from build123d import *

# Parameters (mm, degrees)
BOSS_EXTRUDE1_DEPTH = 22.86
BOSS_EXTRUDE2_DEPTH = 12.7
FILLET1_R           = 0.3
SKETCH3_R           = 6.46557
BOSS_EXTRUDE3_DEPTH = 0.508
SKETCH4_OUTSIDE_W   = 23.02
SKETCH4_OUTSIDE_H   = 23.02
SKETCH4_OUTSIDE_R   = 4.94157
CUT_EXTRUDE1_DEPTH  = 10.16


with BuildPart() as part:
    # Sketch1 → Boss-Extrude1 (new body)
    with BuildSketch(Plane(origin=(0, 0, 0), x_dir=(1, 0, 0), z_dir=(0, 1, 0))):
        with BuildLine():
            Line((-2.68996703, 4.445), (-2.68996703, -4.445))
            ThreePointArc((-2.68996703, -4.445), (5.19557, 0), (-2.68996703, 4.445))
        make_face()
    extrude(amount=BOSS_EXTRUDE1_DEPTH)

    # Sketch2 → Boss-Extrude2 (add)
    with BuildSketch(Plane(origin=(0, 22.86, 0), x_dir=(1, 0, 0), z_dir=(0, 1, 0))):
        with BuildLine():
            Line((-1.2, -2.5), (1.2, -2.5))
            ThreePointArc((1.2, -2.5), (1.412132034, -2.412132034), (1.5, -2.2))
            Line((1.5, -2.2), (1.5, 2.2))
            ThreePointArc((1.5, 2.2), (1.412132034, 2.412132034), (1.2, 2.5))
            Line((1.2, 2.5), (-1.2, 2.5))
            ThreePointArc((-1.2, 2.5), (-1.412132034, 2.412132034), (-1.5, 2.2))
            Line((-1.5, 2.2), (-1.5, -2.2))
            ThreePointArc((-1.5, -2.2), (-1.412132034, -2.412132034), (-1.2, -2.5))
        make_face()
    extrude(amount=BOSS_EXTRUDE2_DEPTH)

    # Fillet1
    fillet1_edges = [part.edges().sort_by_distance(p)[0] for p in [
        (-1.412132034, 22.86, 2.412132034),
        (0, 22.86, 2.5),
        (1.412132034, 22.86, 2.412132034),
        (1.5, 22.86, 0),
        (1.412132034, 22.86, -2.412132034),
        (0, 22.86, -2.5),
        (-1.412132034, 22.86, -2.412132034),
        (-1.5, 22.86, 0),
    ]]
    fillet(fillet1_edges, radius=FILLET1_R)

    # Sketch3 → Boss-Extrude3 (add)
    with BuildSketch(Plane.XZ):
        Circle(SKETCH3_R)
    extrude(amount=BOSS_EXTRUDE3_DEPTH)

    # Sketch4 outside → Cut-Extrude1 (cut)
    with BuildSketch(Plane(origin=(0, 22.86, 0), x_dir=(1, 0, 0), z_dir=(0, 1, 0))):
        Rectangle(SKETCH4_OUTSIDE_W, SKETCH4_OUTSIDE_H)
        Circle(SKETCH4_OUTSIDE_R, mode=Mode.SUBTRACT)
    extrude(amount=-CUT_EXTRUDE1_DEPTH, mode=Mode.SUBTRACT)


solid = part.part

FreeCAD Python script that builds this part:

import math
import FreeCAD as App
import Part
import Sketcher

V = App.Vector
Q = App.Units.Quantity


def edges_at(feature, points):
    """Names of the edges that pass closest to the given points."""
    edges = feature.Shape.Edges
    near = lambda p: min(range(len(edges)), key=lambda i: edges[i].distToShape(Part.Vertex(*p))[0])
    return sorted({f"Edge{near(p) + 1}" for p in points})


def add_polygon(sketch, points):
    """Adds a closed chain of lines whose ends are joined by coincident constraints."""
    first, n = sketch.GeometryCount, len(points)
    for a, b in zip(points, points[1:] + points[:1]):
        sketch.addGeometry(Part.LineSegment(App.Vector(*a, 0), App.Vector(*b, 0)), False)
    for i in range(n):
        sketch.addConstraint(Sketcher.Constraint("Coincident", first + i, 2, first + (i + 1) % n, 1))

doc = App.newDocument("Part")
body = doc.addObject("PartDesign::Body", "Body")

sketch1 = doc.addObject("Sketcher::SketchObject", "Sketch")
body.addObject(sketch1)
sketch1.AttachmentSupport = (doc.XZ_Plane, [""])
sketch1.MapMode = "FlatFace"
sketch1.addGeometry(Part.LineSegment(V(-2.689967, -4.445, 0), V(-2.689967, 4.445, 0)), False)
sketch1.addGeometry(Part.ArcOfCircle(Part.Circle(V(0, 0, 0), V(0, 0, 1), 5.19557), math.radians(-121.18094), math.radians(121.18094)), False)
sketch1.addConstraint(Sketcher.Constraint("Coincident", 0, 1, 1, 1))
sketch1.addConstraint(Sketcher.Constraint("Coincident", 1, 2, 0, 2))
sketch1.addConstraint(Sketcher.Constraint("Vertical", 0))
sketch1.addConstraint(Sketcher.Constraint("Coincident", 1, 3, -1, 1))
sketch1.addConstraint(Sketcher.Constraint("DistanceY", 0, 1, 0, 2, Q("0.35 in")))
sketch1.addConstraint(Sketcher.Constraint("Radius", 1, 5.19557))
pad1 = doc.addObject("PartDesign::Pad", "Pad")
body.addObject(pad1)
pad1.Profile = sketch1
pad1.Length = Q("0.9 in")
pad1.Reversed = True

sketch2 = doc.addObject("Sketcher::SketchObject", "Sketch001")
body.addObject(sketch2)
sketch2.AttachmentSupport = (doc.XZ_Plane, [""])
sketch2.MapMode = "FlatFace"
sketch2.AttachmentOffset = App.Placement(V(0, 0, -0.9 * 25.4), App.Rotation())
sketch2.addGeometry(Part.LineSegment(V(-1.2, 2.5, 0), V(1.2, 2.5, 0)), False)
sketch2.addGeometry(Part.ArcOfCircle(Part.Circle(V(1.2, 2.2, 0), V(0, 0, 1), 0.3), math.radians(0), math.radians(90)), False)
sketch2.addGeometry(Part.LineSegment(V(1.5, 2.2, 0), V(1.5, -2.2, 0)), False)
sketch2.addGeometry(Part.ArcOfCircle(Part.Circle(V(1.2, -2.2, 0), V(0, 0, 1), 0.3), math.radians(-90), math.radians(0)), False)
sketch2.addGeometry(Part.LineSegment(V(1.2, -2.5, 0), V(-1.2, -2.5, 0)), False)
sketch2.addGeometry(Part.ArcOfCircle(Part.Circle(V(-1.2, -2.2, 0), V(0, 0, 1), 0.3), math.radians(-180), math.radians(-90)), False)
sketch2.addGeometry(Part.LineSegment(V(-1.5, -2.2, 0), V(-1.5, 2.2, 0)), False)
sketch2.addGeometry(Part.ArcOfCircle(Part.Circle(V(-1.2, 2.2, 0), V(0, 0, 1), 0.3), math.radians(90), math.radians(180)), False)
sketch2.addConstraint(Sketcher.Constraint("Tangent", 0, 2, 1, 2))
sketch2.addConstraint(Sketcher.Constraint("Tangent", 1, 1, 2, 1))
sketch2.addConstraint(Sketcher.Constraint("Tangent", 2, 2, 3, 2))
sketch2.addConstraint(Sketcher.Constraint("Tangent", 3, 1, 4, 1))
sketch2.addConstraint(Sketcher.Constraint("Tangent", 4, 2, 5, 2))
sketch2.addConstraint(Sketcher.Constraint("Tangent", 5, 1, 6, 1))
sketch2.addConstraint(Sketcher.Constraint("Tangent", 6, 2, 7, 2))
sketch2.addConstraint(Sketcher.Constraint("Tangent", 7, 1, 0, 1))
sketch2.addConstraint(Sketcher.Constraint("Horizontal", 0))
sketch2.addConstraint(Sketcher.Constraint("Vertical", 2))
sketch2.addConstraint(Sketcher.Constraint("Horizontal", 4))
sketch2.addConstraint(Sketcher.Constraint("Vertical", 6))
sketch2.addConstraint(Sketcher.Constraint("Equal", 1, 3))
sketch2.addConstraint(Sketcher.Constraint("Equal", 3, 5))
sketch2.addConstraint(Sketcher.Constraint("Equal", 5, 7))
sketch2.addConstraint(Sketcher.Constraint("Symmetric", 1, 3, 5, 3, -1, 1))
sketch2.addConstraint(Sketcher.Constraint("Radius", 1, 0.3))
sketch2.addConstraint(Sketcher.Constraint("DistanceX", 0, 1, 0, 2, 2.4))
sketch2.addConstraint(Sketcher.Constraint("DistanceY", 2, 2, 2, 1, 4.4))
pad2 = doc.addObject("PartDesign::Pad", "Pad001")
body.addObject(pad2)
pad2.Profile = sketch2
pad2.Length = Q("0.5 in")
pad2.Reversed = True
doc.recompute()

fillet = doc.addObject("PartDesign::Fillet", "Fillet")
body.addObject(fillet)
fillet.Base = (pad2, edges_at(pad2, [
    (-1.412, 22.86, 2.412),
    (0, 22.86, 2.5),
    (1.412, 22.86, 2.412),
    (1.5, 22.86, 0),
    (1.412, 22.86, -2.412),
    (0, 22.86, -2.5),
    (-1.412, 22.86, -2.412),
    (-1.5, 22.86, 0),
]))
fillet.Radius = 0.3

sketch3 = doc.addObject("Sketcher::SketchObject", "Sketch002")
body.addObject(sketch3)
sketch3.AttachmentSupport = (doc.XZ_Plane, [""])
sketch3.MapMode = "FlatFace"
sketch3.addGeometry(Part.Circle(V(0, 0, 0), V(0, 0, 1), 6.46557), False)
sketch3.addConstraint(Sketcher.Constraint("Coincident", 0, 3, -1, 1))
sketch3.addConstraint(Sketcher.Constraint("Diameter", 0, Q("0.5091 in")))
pad3 = doc.addObject("PartDesign::Pad", "Pad002")
body.addObject(pad3)
pad3.Profile = sketch3
pad3.Length = Q("0.02 in")

sketch4 = doc.addObject("Sketcher::SketchObject", "Sketch003")
body.addObject(sketch4)
sketch4.AttachmentSupport = (doc.XZ_Plane, [""])
sketch4.MapMode = "FlatFace"
sketch4.AttachmentOffset = App.Placement(V(0, 0, -0.9 * 25.4), App.Rotation())
add_polygon(sketch4, [(-11.51, -11.51), (-11.51, 11.51), (11.51, 11.51), (11.51, -11.51)])
sketch4.addGeometry(Part.Circle(V(0, 0, 0), V(0, 0, 1), 4.94157), False)
sketch4.addConstraint(Sketcher.Constraint("Vertical", 0))
sketch4.addConstraint(Sketcher.Constraint("Horizontal", 1))
sketch4.addConstraint(Sketcher.Constraint("Vertical", 2))
sketch4.addConstraint(Sketcher.Constraint("Horizontal", 3))
sketch4.addConstraint(Sketcher.Constraint("Coincident", 4, 3, -1, 1))
sketch4.addConstraint(Sketcher.Constraint("Symmetric", 0, 2, 2, 2, -1, 1))
sketch4.addConstraint(Sketcher.Constraint("Equal", 3, 0))
sketch4.addConstraint(Sketcher.Constraint("Diameter", 4, Q("0.3891 in")))
sketch4.addConstraint(Sketcher.Constraint("DistanceX", 1, 1, 1, 2, 23.02))
pocket1 = doc.addObject("PartDesign::Pocket", "Pocket")
body.addObject(pocket1)
pocket1.Profile = sketch4
pocket1.Length = Q("0.4 in")
pocket1.Reversed = True

doc.recompute()
